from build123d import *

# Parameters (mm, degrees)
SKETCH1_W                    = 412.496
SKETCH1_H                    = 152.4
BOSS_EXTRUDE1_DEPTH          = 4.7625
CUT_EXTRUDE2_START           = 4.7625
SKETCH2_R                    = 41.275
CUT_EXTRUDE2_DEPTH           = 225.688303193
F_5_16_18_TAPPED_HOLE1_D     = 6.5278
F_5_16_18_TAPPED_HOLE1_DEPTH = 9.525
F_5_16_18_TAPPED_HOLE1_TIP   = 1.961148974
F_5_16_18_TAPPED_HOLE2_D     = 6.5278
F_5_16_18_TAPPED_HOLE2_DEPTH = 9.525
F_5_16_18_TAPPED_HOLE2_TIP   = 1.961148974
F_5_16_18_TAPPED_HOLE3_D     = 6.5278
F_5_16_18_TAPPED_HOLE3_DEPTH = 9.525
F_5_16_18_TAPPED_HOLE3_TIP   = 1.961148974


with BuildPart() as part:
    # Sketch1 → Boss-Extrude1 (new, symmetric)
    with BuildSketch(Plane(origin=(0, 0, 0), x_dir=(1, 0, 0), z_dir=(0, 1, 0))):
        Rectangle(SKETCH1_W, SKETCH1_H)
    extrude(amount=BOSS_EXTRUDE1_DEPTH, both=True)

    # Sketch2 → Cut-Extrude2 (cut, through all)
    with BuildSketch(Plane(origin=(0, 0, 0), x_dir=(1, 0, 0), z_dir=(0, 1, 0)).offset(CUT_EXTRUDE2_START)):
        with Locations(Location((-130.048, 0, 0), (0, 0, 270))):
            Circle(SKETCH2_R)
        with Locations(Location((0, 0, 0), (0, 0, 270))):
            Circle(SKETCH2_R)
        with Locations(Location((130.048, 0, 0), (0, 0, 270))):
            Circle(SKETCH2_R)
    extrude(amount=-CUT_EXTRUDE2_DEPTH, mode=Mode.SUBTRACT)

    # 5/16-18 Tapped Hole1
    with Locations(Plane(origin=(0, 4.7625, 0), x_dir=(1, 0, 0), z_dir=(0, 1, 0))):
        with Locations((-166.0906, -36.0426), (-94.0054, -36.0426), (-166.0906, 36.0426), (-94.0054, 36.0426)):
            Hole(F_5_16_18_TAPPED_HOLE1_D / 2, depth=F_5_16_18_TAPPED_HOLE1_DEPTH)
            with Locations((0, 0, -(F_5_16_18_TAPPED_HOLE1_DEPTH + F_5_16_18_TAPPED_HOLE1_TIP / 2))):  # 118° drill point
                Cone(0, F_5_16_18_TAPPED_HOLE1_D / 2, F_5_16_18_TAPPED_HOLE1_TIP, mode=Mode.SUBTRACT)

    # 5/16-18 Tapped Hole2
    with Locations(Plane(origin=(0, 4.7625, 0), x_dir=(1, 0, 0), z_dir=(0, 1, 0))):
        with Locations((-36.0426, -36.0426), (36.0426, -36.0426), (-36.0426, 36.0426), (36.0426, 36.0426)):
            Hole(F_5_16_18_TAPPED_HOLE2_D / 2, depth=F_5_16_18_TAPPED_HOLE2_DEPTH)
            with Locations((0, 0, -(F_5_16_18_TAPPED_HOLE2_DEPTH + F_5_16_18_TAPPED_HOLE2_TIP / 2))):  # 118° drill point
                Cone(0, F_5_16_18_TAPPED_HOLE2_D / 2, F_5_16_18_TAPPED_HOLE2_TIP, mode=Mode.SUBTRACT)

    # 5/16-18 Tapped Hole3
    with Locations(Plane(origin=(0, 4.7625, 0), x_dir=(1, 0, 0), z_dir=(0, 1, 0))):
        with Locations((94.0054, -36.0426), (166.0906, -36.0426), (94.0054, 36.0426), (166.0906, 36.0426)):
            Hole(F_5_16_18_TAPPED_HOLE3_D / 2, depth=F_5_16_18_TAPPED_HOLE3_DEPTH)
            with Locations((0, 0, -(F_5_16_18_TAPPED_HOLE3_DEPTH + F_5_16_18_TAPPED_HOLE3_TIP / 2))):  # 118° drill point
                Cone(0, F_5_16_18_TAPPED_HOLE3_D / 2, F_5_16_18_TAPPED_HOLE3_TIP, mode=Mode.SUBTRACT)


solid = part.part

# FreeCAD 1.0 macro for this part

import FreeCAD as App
import Part
import Sketcher
Q = App.Units.Quantity

doc = App.newDocument("Part")
body = doc.addObject("PartDesign::Body", "Body")

sketch1 = body.newObject("Sketcher::SketchObject", "Sketch")
sketch1.AttachmentSupport = (doc.getObject("XZ_Plane"), [""])
sketch1.MapMode = "FlatFace"
sketch1.addGeometry(Part.LineSegment(App.Vector(-206, -76, 0), App.Vector(-206, 76, 0)), False)
sketch1.addGeometry(Part.LineSegment(App.Vector(-206, 76, 0), App.Vector(206, 76, 0)), False)
sketch1.addGeometry(Part.LineSegment(App.Vector(206, 76, 0), App.Vector(206, -76, 0)), False)
sketch1.addGeometry(Part.LineSegment(App.Vector(206, -76, 0), App.Vector(-206, -76, 0)), False)
sketch1.addConstraint(Sketcher.Constraint("Coincident", 0, 2, 1, 1))
sketch1.addConstraint(Sketcher.Constraint("Coincident", 1, 2, 2, 1))
sketch1.addConstraint(Sketcher.Constraint("Coincident", 2, 2, 3, 1))
sketch1.addConstraint(Sketcher.Constraint("Coincident", 3, 2, 0, 1))
sketch1.addConstraint(Sketcher.Constraint("Vertical", 0))
sketch1.addConstraint(Sketcher.Constraint("Horizontal", 1))
sketch1.addConstraint(Sketcher.Constraint("Vertical", 2))
sketch1.addConstraint(Sketcher.Constraint("Horizontal", 3))
sketch1.addConstraint(Sketcher.Constraint("Symmetric", 0, 2, 2, 2, -1, 1))
sketch1.addConstraint(Sketcher.Constraint("DistanceY", 0, 1, 0, 2, Q("6 in")))
sketch1.addConstraint(Sketcher.Constraint("DistanceX", 1, 1, 1, 2, Q("16.24 in")))
pad1 = body.newObject("PartDesign::Pad", "Pad")
pad1.Profile = sketch1
pad1.Length = Q("0.375 in")
pad1.Midplane = True

sketch2 = body.newObject("Sketcher::SketchObject", "Sketch001")
sketch2.AttachmentSupport = (doc.getObject("XZ_Plane"), [""])
sketch2.MapMode = "FlatFace"
sketch2.AttachmentOffset = App.Placement(App.Vector(0, 0, -0.1875 * 25.4), App.Rotation())
sketch2.addGeometry(Part.Circle(App.Vector(-130, 0, 0), App.Vector(0, 0, 1), 41), False)
sketch2.addGeometry(Part.Circle(App.Vector(0, 0, 0), App.Vector(0, 0, 1), 41), False)
sketch2.addGeometry(Part.Circle(App.Vector(130, 0, 0), App.Vector(0, 0, 1), 41), False)
sketch2.addConstraint(Sketcher.Constraint("Coincident", 1, 3, -1, 1))
sketch2.addConstraint(Sketcher.Constraint("Equal", 0, 1))
sketch2.addConstraint(Sketcher.Constraint("Equal", 1, 2))
sketch2.addConstraint(Sketcher.Constraint("Symmetric", 0, 3, 2, 3, -1, 1))
sketch2.addConstraint(Sketcher.Constraint("PointOnObject", 0, 3, -1))
sketch2.addConstraint(Sketcher.Constraint("Diameter", 0, Q("3.25 in")))
sketch2.addConstraint(Sketcher.Constraint("DistanceX", 0, 3, -1, 1, Q("5.12 in")))
pocket1 = body.newObject("PartDesign::Pocket", "Pocket")
pocket1.Profile = sketch2
pocket1.Type = "ThroughAll"
pocket1.Reversed = True

sketch3 = body.newObject("Sketcher::SketchObject", "Sketch002")
sketch3.AttachmentSupport = (doc.getObject("XZ_Plane"), [""])
sketch3.MapMode = "FlatFace"
sketch3.AttachmentOffset = App.Placement(App.Vector(0, 0, -0.1875 * 25.4), App.Rotation())
sketch3.addGeometry(Part.Circle(App.Vector(-166.1, 36, 0), App.Vector(0, 0, 1), 3.3), False)
sketch3.addGeometry(Part.Circle(App.Vector(-94, 36, 0), App.Vector(0, 0, 1), 3.3), False)
sketch3.addGeometry(Part.Circle(App.Vector(-166.1, -36, 0), App.Vector(0, 0, 1), 3.3), False)
sketch3.addGeometry(Part.Circle(App.Vector(-94, -36, 0), App.Vector(0, 0, 1), 3.3), False)
sketch3.addConstraint(Sketcher.Constraint("Equal", 0, 1))
sketch3.addConstraint(Sketcher.Constraint("Equal", 1, 2))
sketch3.addConstraint(Sketcher.Constraint("Equal", 2, 3))
sketch3.addConstraint(Sketcher.Constraint("Symmetric", 0, 3, 2, 3, -1))
sketch3.addConstraint(Sketcher.Constraint("Symmetric", 1, 3, 3, 3, -1))
sketch3.addConstraint(Sketcher.Constraint("Horizontal", 0, 3, 1, 3))
sketch3.addConstraint(Sketcher.Constraint("Diameter", 0, Q("0.257 in")))
sketch3.addConstraint(Sketcher.Constraint("DistanceX", 0, 3, -1, 1, Q("6.539 in")))
sketch3.addConstraint(Sketcher.Constraint("DistanceY", -1, 1, 0, 3, Q("1.419 in")))
sketch3.addConstraint(Sketcher.Constraint("DistanceX", 1, 3, -1, 1, Q("3.701 in")))
doc.recompute()
hole = body.newObject("PartDesign::Hole", "Hole")
hole.Profile = sketch3
hole.ThreadType = "None"
hole.Diameter = Q("0.257 in")
hole.DepthType = "Dimension"
hole.Depth = Q("0.375 in")
hole.DrillPoint = "Angled"
hole.DrillPointAngle = 118
hole.Reversed = True

sketch4 = body.newObject("Sketcher::SketchObject", "Sketch003")
sketch4.AttachmentSupport = (doc.getObject("XZ_Plane"), [""])
sketch4.MapMode = "FlatFace"
sketch4.AttachmentOffset = App.Placement(App.Vector(0, 0, -0.1875 * 25.4), App.Rotation())
sketch4.addGeometry(Part.Circle(App.Vector(-36, 36, 0), App.Vector(0, 0, 1), 3.3), False)
sketch4.addGeometry(Part.Circle(App.Vector(36, 36, 0), App.Vector(0, 0, 1), 3.3), False)
sketch4.addGeometry(Part.Circle(App.Vector(-36, -36, 0), App.Vector(0, 0, 1), 3.3), False)
sketch4.addGeometry(Part.Circle(App.Vector(36, -36, 0), App.Vector(0, 0, 1), 3.3), False)
sketch4.addConstraint(Sketcher.Constraint("Equal", 0, 1))
sketch4.addConstraint(Sketcher.Constraint("Equal", 1, 2))
sketch4.addConstraint(Sketcher.Constraint("Equal", 2, 3))
sketch4.addConstraint(Sketcher.Constraint("Symmetric", 1, 3, 2, 3, -1, 1))
sketch4.addConstraint(Sketcher.Constraint("Symmetric", 0, 3, 3, 3, -1, 1))
sketch4.addConstraint(Sketcher.Constraint("Symmetric", 0, 3, 1, 3, -2))
sketch4.addConstraint(Sketcher.Constraint("Diameter", 0, Q("0.257 in")))
sketch4.addConstraint(Sketcher.Constraint("DistanceX", 0, 3, -1, 1, Q("1.419 in")))
sketch4.addConstraint(Sketcher.Constraint("DistanceY", -1, 1, 0, 3, Q("1.419 in")))
doc.recompute()
hole2 = body.newObject("PartDesign::Hole", "Hole001")
hole2.Profile = sketch4
hole2.ThreadType = "None"
hole2.Diameter = Q("0.257 in")
hole2.DepthType = "Dimension"
hole2.Depth = Q("0.375 in")
hole2.DrillPoint = "Angled"
hole2.DrillPointAngle = 118
hole2.Reversed = True

sketch5 = body.newObject("Sketcher::SketchObject", "Sketch004")
sketch5.AttachmentSupport = (doc.getObject("XZ_Plane"), [""])
sketch5.MapMode = "FlatFace"
sketch5.AttachmentOffset = App.Placement(App.Vector(0, 0, -0.1875 * 25.4), App.Rotation())
sketch5.addGeometry(Part.Circle(App.Vector(94, 36, 0), App.Vector(0, 0, 1), 3.3), False)
sketch5.addGeometry(Part.Circle(App.Vector(166.1, 36, 0), App.Vector(0, 0, 1), 3.3), False)
sketch5.addGeometry(Part.Circle(App.Vector(94, -36, 0), App.Vector(0, 0, 1), 3.3), False)
sketch5.addGeometry(Part.Circle(App.Vector(166.1, -36, 0), App.Vector(0, 0, 1), 3.3), False)
sketch5.addConstraint(Sketcher.Constraint("Equal", 0, 1))
sketch5.addConstraint(Sketcher.Constraint("Equal", 1, 2))
sketch5.addConstraint(Sketcher.Constraint("Equal", 2, 3))
sketch5.addConstraint(Sketcher.Constraint("Symmetric", 0, 3, 2, 3, -1))
sketch5.addConstraint(Sketcher.Constraint("Symmetric", 1, 3, 3, 3, -1))
sketch5.addConstraint(Sketcher.Constraint("Horizontal", 0, 3, 1, 3))
sketch5.addConstraint(Sketcher.Constraint("Diameter", 0, Q("0.257 in")))
sketch5.addConstraint(Sketcher.Constraint("DistanceX", -1, 1, 0, 3, Q("3.701 in")))
sketch5.addConstraint(Sketcher.Constraint("DistanceY", -1, 1, 0, 3, Q("1.419 in")))
sketch5.addConstraint(Sketcher.Constraint("DistanceX", -1, 1, 1, 3, Q("6.539 in")))
doc.recompute()
hole3 = body.newObject("PartDesign::Hole", "Hole002")
hole3.Profile = sketch5
hole3.ThreadType = "None"
hole3.Diameter = Q("0.257 in")
hole3.DepthType = "Dimension"
hole3.Depth = Q("0.375 in")
hole3.DrillPoint = "Angled"
hole3.DrillPointAngle = 118
hole3.Reversed = True

doc.recompute()
